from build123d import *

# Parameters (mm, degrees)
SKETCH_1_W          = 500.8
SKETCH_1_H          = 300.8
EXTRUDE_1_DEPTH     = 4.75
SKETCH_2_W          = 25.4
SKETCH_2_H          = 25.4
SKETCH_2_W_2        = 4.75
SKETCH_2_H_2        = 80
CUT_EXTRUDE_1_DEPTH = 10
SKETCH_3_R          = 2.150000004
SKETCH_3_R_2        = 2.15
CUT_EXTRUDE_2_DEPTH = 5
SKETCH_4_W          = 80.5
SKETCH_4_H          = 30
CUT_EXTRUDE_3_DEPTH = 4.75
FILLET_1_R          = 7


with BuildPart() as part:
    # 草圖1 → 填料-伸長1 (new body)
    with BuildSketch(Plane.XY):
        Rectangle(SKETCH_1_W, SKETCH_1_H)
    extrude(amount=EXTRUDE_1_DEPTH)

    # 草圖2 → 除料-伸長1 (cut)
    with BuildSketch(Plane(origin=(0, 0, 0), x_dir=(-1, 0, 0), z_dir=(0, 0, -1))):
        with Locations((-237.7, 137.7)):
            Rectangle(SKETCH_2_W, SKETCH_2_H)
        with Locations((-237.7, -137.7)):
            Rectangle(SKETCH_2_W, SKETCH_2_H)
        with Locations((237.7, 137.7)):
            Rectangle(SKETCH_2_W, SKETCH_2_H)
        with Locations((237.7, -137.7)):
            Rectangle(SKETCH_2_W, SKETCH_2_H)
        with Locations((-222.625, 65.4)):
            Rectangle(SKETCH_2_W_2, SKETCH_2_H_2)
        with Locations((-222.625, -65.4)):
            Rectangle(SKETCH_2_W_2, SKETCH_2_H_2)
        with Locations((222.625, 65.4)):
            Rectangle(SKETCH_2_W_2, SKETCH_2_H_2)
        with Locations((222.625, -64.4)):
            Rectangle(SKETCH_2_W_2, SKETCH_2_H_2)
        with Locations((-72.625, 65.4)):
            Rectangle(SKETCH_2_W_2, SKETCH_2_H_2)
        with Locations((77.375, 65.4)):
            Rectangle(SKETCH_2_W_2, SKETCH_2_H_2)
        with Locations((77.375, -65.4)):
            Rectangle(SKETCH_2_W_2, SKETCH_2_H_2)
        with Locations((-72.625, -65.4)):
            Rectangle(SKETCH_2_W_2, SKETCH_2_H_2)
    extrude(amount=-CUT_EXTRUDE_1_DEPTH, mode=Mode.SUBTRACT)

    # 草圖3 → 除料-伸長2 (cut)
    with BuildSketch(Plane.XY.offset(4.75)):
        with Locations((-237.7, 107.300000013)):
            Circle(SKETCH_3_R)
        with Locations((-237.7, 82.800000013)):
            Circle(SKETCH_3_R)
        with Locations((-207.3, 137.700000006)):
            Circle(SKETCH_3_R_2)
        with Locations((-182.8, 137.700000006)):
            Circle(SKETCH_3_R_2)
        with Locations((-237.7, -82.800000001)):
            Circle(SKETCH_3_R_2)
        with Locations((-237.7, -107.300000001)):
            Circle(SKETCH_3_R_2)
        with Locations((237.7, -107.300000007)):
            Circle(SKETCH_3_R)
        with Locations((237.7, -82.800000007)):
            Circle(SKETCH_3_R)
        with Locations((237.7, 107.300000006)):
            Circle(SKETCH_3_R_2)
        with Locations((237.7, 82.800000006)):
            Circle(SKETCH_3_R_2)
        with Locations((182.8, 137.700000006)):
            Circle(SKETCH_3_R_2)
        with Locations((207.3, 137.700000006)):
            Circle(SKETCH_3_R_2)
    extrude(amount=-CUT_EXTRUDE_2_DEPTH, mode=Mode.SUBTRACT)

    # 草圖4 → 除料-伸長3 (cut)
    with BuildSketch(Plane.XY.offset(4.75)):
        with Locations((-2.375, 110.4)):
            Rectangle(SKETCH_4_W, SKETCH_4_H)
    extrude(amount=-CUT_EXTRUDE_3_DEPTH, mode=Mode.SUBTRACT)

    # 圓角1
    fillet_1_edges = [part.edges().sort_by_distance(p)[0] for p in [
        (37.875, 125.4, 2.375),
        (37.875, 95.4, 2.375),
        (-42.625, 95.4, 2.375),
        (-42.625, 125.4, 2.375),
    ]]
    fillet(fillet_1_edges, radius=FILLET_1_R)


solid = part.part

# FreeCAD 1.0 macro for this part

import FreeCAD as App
import Part
import Sketcher


def edges_at(feature, points):
    """Names of the edges that pass closest to the given points."""
    edges = feature.Shape.Edges
    near = lambda p: min(range(len(edges)), key=lambda i: edges[i].distToShape(Part.Vertex(*p))[0])
    return sorted({f"Edge{near(p) + 1}" for p in points})


def add_polygon(sketch, points):
    """Adds a closed chain of lines whose ends are joined by coincident constraints."""
    first, n = sketch.GeometryCount, len(points)
    for a, b in zip(points, points[1:] + points[:1]):
        sketch.addGeometry(Part.LineSegment(App.Vector(*a, 0), App.Vector(*b, 0)), False)
    for i in range(n):
        sketch.addConstraint(Sketcher.Constraint("Coincident", first + i, 2, first + (i + 1) % n, 1))

doc = App.newDocument("Part")
params = doc.addObject("Spreadsheet::Sheet", "Params")
for row, (alias, value) in enumerate([
    ("sketch1_width", "500.8 mm"),
    ("sketch1_height", "300.8 mm"),
    ("pad1_length", "4.75 mm"),
    ("sketch2_height", "80 mm"),
    ("sketch2_width", "25.4 mm"),
    ("sketch2_width2", "4.75 mm"),
    ("pocket1_length", "10 mm"),
    ("sketch3_diameter", "4.3 mm"),
    ("pocket2_length", "5 mm"),
    ("sketch4_height", "30 mm"),
    ("sketch4_width", "80.5 mm"),
    ("pocket3_length", "4.75 mm"),
    ("fillet_radius", "7 mm"),
], start=1):
    params.set(f"A{row}", alias)
    params.set(f"B{row}", "=" + value)
    params.setAlias(f"B{row}", alias)

body = doc.addObject("PartDesign::Body", "Body")

# Sketch on XY plane
sketch1 = doc.addObject("Sketcher::SketchObject", "Sketch")
body.addObject(sketch1)
sketch1.AttachmentSupport = (doc.XY_Plane, [""])
sketch1.MapMode = "FlatFace"
add_polygon(sketch1, [(-250, 150), (-250, -150), (250, -150), (250, 150)])  # lines 0-3
sketch1.addConstraint([
    Sketcher.Constraint("Vertical", 0),
    Sketcher.Constraint("Horizontal", 1),
    Sketcher.Constraint("Vertical", 2),
    Sketcher.Constraint("Horizontal", 3),
    Sketcher.Constraint("Symmetric", 0, 2, 2, 2, -1, 1),
    Sketcher.Constraint("DistanceX", 1, 1, 1, 2, 500.8),
    Sketcher.Constraint("DistanceY", 0, 2, 0, 1, 300.8),
])
sketch1.setExpression("Constraints[9]", "Params.sketch1_width")
sketch1.setExpression("Constraints[10]", "Params.sketch1_height")
pad1 = doc.addObject("PartDesign::Pad", "Pad")
body.addObject(pad1)
pad1.Profile = sketch1
pad1.setExpression("Length", "Params.pad1_length")

# Sketch on XY plane
sketch2 = doc.addObject("Sketcher::SketchObject", "Sketch001")
body.addObject(sketch2)
sketch2.AttachmentSupport = (doc.XY_Plane, [""])
sketch2.MapMode = "FlatFace"
add_polygon(sketch2, [(250.4, 150.4), (250.4, 125), (225, 125), (225, 150.4)])  # lines 0-3
add_polygon(sketch2, [(250.4, -125), (250.4, -150.4), (225, -150.4), (225, -125)])  # lines 4-7
add_polygon(sketch2, [(-225, 150.4), (-225, 125), (-250.4, 125), (-250.4, 150.4)])  # lines 8-11
add_polygon(sketch2, [(-225, -125), (-225, -150.4), (-250.4, -150.4), (-250.4, -125)])  # lines 12-15
add_polygon(sketch2, [(225, 105.4), (225, 25.4), (220.2, 25.4), (220.2, 105.4)])  # lines 16-19
add_polygon(sketch2, [(225, -25.4), (225, -105.4), (220.2, -105.4), (220.2, -25.4)])  # lines 20-23
add_polygon(sketch2, [(-220.2, 105.4), (-220.2, 25.4), (-225, 25.4), (-225, 105.4)])  # lines 24-27
add_polygon(sketch2, [(-220.2, -24.4), (-220.2, -104.4), (-225, -104.4), (-225, -24.4)])  # lines 28-31
add_polygon(sketch2, [(75, 105.4), (75, 25.4), (70.2, 25.4), (70.2, 105.4)])  # lines 32-35
add_polygon(sketch2, [(-75, 105.4), (-75, 25.4), (-79.8, 25.4), (-79.8, 105.4)])  # lines 36-39
add_polygon(sketch2, [(-75, -25.4), (-75, -105.4), (-79.8, -105.4), (-79.8, -25.4)])  # lines 40-43
add_polygon(sketch2, [(75, -25.4), (75, -105.4), (70.2, -105.4), (70.2, -25.4)])  # lines 44-47
sketch2.addConstraint([
    Sketcher.Constraint("Vertical", 0),
    Sketcher.Constraint("Horizontal", 1),
    Sketcher.Constraint("Vertical", 2),
    Sketcher.Constraint("Horizontal", 3),
    Sketcher.Constraint("Vertical", 4),
    Sketcher.Constraint("Horizontal", 5),
    Sketcher.Constraint("Vertical", 6),
    Sketcher.Constraint("Horizontal", 7),
    Sketcher.Constraint("Vertical", 8),
    Sketcher.Constraint("Horizontal", 9),
    Sketcher.Constraint("Vertical", 10),
    Sketcher.Constraint("Horizontal", 11),
    Sketcher.Constraint("Vertical", 12),
    Sketcher.Constraint("Horizontal", 13),
    Sketcher.Constraint("Vertical", 14),
    Sketcher.Constraint("Horizontal", 15),
    Sketcher.Constraint("Vertical", 16),
    Sketcher.Constraint("Horizontal", 17),
    Sketcher.Constraint("Vertical", 18),
    Sketcher.Constraint("Horizontal", 19),
    Sketcher.Constraint("Vertical", 20),
    Sketcher.Constraint("Horizontal", 21),
    Sketcher.Constraint("Vertical", 22),
    Sketcher.Constraint("Horizontal", 23),
    Sketcher.Constraint("Vertical", 24),
    Sketcher.Constraint("Horizontal", 25),
    Sketcher.Constraint("Vertical", 26),
    Sketcher.Constraint("Horizontal", 27),
    Sketcher.Constraint("Vertical", 28),
    Sketcher.Constraint("Horizontal", 29),
    Sketcher.Constraint("Vertical", 30),
    Sketcher.Constraint("Horizontal", 31),
    Sketcher.Constraint("Vertical", 32),
    Sketcher.Constraint("Horizontal", 33),
    Sketcher.Constraint("Vertical", 34),
    Sketcher.Constraint("Horizontal", 35),
    Sketcher.Constraint("Vertical", 36),
    Sketcher.Constraint("Horizontal", 37),
    Sketcher.Constraint("Vertical", 38),
    Sketcher.Constraint("Horizontal", 39),
    Sketcher.Constraint("Vertical", 40),
    Sketcher.Constraint("Horizontal", 41),
    Sketcher.Constraint("Vertical", 42),
    Sketcher.Constraint("Horizontal", 43),
    Sketcher.Constraint("Vertical", 44),
    Sketcher.Constraint("Horizontal", 45),
    Sketcher.Constraint("Vertical", 46),
    Sketcher.Constraint("Horizontal", 47),
    Sketcher.Constraint("Symmetric", 6, 2, 8, 2, -1, 1),
    Sketcher.Constraint("Symmetric", 4, 2, 10, 2, -1, 1),
    Sketcher.Constraint("Symmetric", 2, 2, 12, 2, -1, 1),
    Sketcher.Constraint("Symmetric", 0, 2, 14, 2, -1, 1),
    Sketcher.Constraint("Symmetric", 22, 2, 24, 2, -1, 1),
    Sketcher.Constraint("Symmetric", 20, 2, 26, 2, -1, 1),
    Sketcher.Constraint("Symmetric", 35, 2, 40, 2, -1, 1),
    Sketcher.Constraint("Symmetric", 39, 2, 44, 2, -1, 1),
    Sketcher.Constraint("Symmetric", 1, 2, 8, 2, -2),
    Sketcher.Constraint("Symmetric", 3, 2, 10, 2, -2),
    Sketcher.Constraint("Symmetric", 17, 2, 24, 2, -2),
    Sketcher.Constraint("Symmetric", 19, 2, 26, 2, -2),
    Sketcher.Constraint("Symmetric", 32, 2, 36, 2, -2),
    Sketcher.Constraint("Symmetric", 38, 2, 41, 2, -1),
    Sketcher.Constraint("Symmetric", 33, 2, 46, 2, -1),
    Sketcher.Constraint("Horizontal", 25, 2, 32, 2),
    Sketcher.Constraint("Horizontal", 27, 2, 34, 2),
    Sketcher.Constraint("Horizontal", 23, 2, 42, 2),
    Sketcher.Constraint("Vertical", 6, 2, 16, 2),
    Sketcher.Constraint("Vertical", 27, 2, 28, 2),
    Sketcher.Constraint("Vertical", 26, 2, 29, 2),
    Sketcher.Constraint("Equal", 31, 33),
    Sketcher.Constraint("Equal", 35, 37),
    Sketcher.Constraint("Equal", 15, 0),
    Sketcher.Constraint("Equal", 26, 28),
    Sketcher.Constraint("DistanceY", 16, 2, 16, 1, 80.0),
    Sketcher.Constraint("DistanceX", 1, 2, 1, 1, 25.4),
    Sketcher.Constraint("DistanceY", -1, 1, 0, 2, 125.0),
    Sketcher.Constraint("DistanceX", -1, 1, 1, 2, 225.0),
    Sketcher.Constraint("DistanceX", -1, 1, 32, 2, 75.0),
    Sketcher.Constraint("DistanceY", 16, 2, 2, 2, 125.0),
    Sketcher.Constraint("DistanceY", 12, 2, 28, 2, 46.0),
    Sketcher.Constraint("DistanceX", 17, 2, 17, 1, 4.75),
])
sketch2.setExpression("Constraints[121]", "Params.sketch2_height")
sketch2.setExpression("Constraints[122]", "Params.sketch2_width")
sketch2.setExpression("Constraints[128]", "Params.sketch2_width2")
pocket1 = doc.addObject("PartDesign::Pocket", "Pocket")
body.addObject(pocket1)
pocket1.Profile = sketch2
pocket1.setExpression("Length", "Params.pocket1_length")
pocket1.Reversed = True

# Sketch on XY plane
sketch3 = doc.addObject("Sketcher::SketchObject", "Sketch002")
body.addObject(sketch3)
sketch3.AttachmentSupport = (doc.XY_Plane, [""])
sketch3.MapMode = "FlatFace"
sketch3.AttachmentOffset = App.Placement(App.Vector(0, 0, 4.75), App.Rotation())
sketch3.addGeometry([
    Part.Circle(App.Vector(-237.7, 107.3, 0), App.Vector(0, 0, 1), 2.2),  # 0
    Part.Circle(App.Vector(-237.7, 82.8, 0), App.Vector(0, 0, 1), 2.2),  # 1
    Part.Circle(App.Vector(-207.3, 137.7, 0), App.Vector(0, 0, 1), 2.1),  # 2
    Part.Circle(App.Vector(-182.8, 137.7, 0), App.Vector(0, 0, 1), 2.1),  # 3
    Part.Circle(App.Vector(-237.7, -82.8, 0), App.Vector(0, 0, 1), 2.1),  # 4
    Part.Circle(App.Vector(-237.7, -107.3, 0), App.Vector(0, 0, 1), 2.1),  # 5
    Part.Circle(App.Vector(237.7, -107.3, 0), App.Vector(0, 0, 1), 2.2),  # 6
    Part.Circle(App.Vector(237.7, -82.8, 0), App.Vector(0, 0, 1), 2.2),  # 7
    Part.Circle(App.Vector(237.7, 107.3, 0), App.Vector(0, 0, 1), 2.1),  # 8
    Part.Circle(App.Vector(237.7, 82.8, 0), App.Vector(0, 0, 1), 2.1),  # 9
    Part.Circle(App.Vector(182.8, 137.7, 0), App.Vector(0, 0, 1), 2.1),  # 10
    Part.Circle(App.Vector(207.3, 137.7, 0), App.Vector(0, 0, 1), 2.1),  # 11
], False)
sketch3.addConstraint([
    Sketcher.Constraint("Equal", 0, 1),
    Sketcher.Constraint("Equal", 1, 2),
    Sketcher.Constraint("Equal", 2, 3),
    Sketcher.Constraint("Equal", 3, 4),
    Sketcher.Constraint("Equal", 4, 5),
    Sketcher.Constraint("Equal", 5, 6),
    Sketcher.Constraint("Equal", 6, 7),
    Sketcher.Constraint("Equal", 7, 8),
    Sketcher.Constraint("Equal", 8, 9),
    Sketcher.Constraint("Equal", 9, 10),
    Sketcher.Constraint("Equal", 10, 11),
    Sketcher.Constraint("Symmetric", 0, 3, 6, 3, -1, 1),
    Sketcher.Constraint("Symmetric", 1, 3, 7, 3, -1, 1),
    Sketcher.Constraint("Symmetric", 5, 3, 8, 3, -1, 1),
    Sketcher.Constraint("Symmetric", 4, 3, 9, 3, -1, 1),
    Sketcher.Constraint("Symmetric", 5, 3, 6, 3, -2),
    Sketcher.Constraint("Symmetric", 4, 3, 7, 3, -2),
    Sketcher.Constraint("Symmetric", 3, 3, 10, 3, -2),
    Sketcher.Constraint("Symmetric", 2, 3, 11, 3, -2),
    Sketcher.Constraint("Horizontal", 2, 3, 3, 3),
    Sketcher.Constraint("Vertical", 0, 3, 1, 3),
    Sketcher.Constraint("Diameter", 0, 4.3),
    Sketcher.Constraint("DistanceY", 5, 3, 2, 3, 245.0),
    Sketcher.Constraint("DistanceX", 2, 3, 6, 3, 445.0),
    Sketcher.Constraint("DistanceX", 0, 3, -1, 1, 237.7),
    Sketcher.Constraint("DistanceY", -1, 1, 0, 3, 107.3),
    Sketcher.Constraint("DistanceY", -1, 1, 1, 3, 82.8),
    Sketcher.Constraint("DistanceX", 3, 3, -1, 1, 182.8),
])
sketch3.setExpression("Constraints[21]", "Params.sketch3_diameter")
pocket2 = doc.addObject("PartDesign::Pocket", "Pocket001")
body.addObject(pocket2)
pocket2.Profile = sketch3
pocket2.setExpression("Length", "Params.pocket2_length")

# Sketch on XY plane
sketch4 = doc.addObject("Sketcher::SketchObject", "Sketch003")
body.addObject(sketch4)
sketch4.AttachmentSupport = (doc.XY_Plane, [""])
sketch4.MapMode = "FlatFace"
sketch4.AttachmentOffset = App.Placement(App.Vector(0, 0, 4.75), App.Rotation())
add_polygon(sketch4, [(-43, 125), (-43, 95), (38, 95), (38, 125)])  # lines 0-3
sketch4.addConstraint([
    Sketcher.Constraint("Vertical", 0),
    Sketcher.Constraint("Horizontal", 1),
    Sketcher.Constraint("Vertical", 2),
    Sketcher.Constraint("Horizontal", 3),
    Sketcher.Constraint("DistanceY", 0, 2, 0, 1, 30.0),
    Sketcher.Constraint("DistanceX", 1, 1, 1, 2, 80.5),
    Sketcher.Constraint("DistanceY", -1, 1, 0, 2, 95.4),
    Sketcher.Constraint("DistanceX", 0, 2, -1, 1, 42.625),
])
sketch4.setExpression("Constraints[8]", "Params.sketch4_height")
sketch4.setExpression("Constraints[9]", "Params.sketch4_width")
pocket3 = doc.addObject("PartDesign::Pocket", "Pocket002")
body.addObject(pocket3)
pocket3.Profile = sketch4
pocket3.setExpression("Length", "Params.pocket3_length")
doc.recompute()

fillet = doc.addObject("PartDesign::Fillet", "Fillet")
body.addObject(fillet)
fillet.Base = (pocket3, edges_at(pocket3, [
    (37.875, 125.4, 2.375),
    (37.875, 95.4, 2.375),
    (-42.625, 95.4, 2.375),
    (-42.625, 125.4, 2.375),
]))
fillet.setExpression("Radius", "Params.fillet_radius")

doc.recompute()
